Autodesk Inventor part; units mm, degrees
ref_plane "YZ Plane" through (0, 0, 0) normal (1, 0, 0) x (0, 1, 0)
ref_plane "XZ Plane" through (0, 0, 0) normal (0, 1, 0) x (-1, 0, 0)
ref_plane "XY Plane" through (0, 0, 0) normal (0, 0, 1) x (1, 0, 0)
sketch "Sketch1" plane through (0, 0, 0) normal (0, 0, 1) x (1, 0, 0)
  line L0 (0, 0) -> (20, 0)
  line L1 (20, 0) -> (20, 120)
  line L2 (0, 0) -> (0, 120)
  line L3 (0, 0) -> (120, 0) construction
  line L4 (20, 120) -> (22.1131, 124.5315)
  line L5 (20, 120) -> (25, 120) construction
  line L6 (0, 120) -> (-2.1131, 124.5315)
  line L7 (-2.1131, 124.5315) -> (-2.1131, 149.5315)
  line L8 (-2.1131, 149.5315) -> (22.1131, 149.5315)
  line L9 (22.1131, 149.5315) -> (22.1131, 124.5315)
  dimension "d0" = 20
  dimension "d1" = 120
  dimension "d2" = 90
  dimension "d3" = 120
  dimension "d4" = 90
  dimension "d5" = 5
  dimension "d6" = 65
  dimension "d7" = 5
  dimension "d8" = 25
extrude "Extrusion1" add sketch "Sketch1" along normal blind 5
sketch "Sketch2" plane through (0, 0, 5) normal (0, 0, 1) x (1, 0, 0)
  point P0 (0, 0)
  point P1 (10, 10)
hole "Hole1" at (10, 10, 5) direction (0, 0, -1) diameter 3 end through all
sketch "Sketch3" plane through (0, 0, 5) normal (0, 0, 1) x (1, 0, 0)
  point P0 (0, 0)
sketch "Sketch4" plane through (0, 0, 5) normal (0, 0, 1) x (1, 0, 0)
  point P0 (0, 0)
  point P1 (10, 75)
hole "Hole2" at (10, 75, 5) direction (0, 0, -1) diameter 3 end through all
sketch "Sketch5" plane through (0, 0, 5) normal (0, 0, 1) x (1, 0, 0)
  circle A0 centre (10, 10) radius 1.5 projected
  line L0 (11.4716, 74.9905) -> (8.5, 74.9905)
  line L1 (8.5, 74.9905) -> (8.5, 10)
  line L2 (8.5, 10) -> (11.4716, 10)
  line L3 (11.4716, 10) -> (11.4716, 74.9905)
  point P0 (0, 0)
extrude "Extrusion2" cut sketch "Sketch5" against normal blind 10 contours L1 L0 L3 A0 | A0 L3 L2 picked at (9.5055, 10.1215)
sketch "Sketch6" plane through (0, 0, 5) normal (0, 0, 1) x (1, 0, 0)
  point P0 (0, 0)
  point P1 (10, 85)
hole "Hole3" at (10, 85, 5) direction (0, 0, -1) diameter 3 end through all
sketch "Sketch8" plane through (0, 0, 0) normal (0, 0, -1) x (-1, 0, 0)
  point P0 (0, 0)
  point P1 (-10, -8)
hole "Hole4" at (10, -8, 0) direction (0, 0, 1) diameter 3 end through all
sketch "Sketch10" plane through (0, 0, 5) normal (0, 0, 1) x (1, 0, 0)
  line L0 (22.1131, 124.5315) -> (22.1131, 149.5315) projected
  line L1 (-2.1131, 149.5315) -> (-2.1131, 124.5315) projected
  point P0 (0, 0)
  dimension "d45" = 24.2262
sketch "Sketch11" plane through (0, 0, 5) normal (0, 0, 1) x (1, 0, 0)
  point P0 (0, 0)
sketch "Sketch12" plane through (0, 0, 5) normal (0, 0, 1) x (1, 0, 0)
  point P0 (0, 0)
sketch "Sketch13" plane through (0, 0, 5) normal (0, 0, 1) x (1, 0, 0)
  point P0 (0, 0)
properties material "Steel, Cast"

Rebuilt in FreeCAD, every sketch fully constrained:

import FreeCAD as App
import Part
import Sketcher

V = App.Vector
Q = App.Units.Quantity


def add_polygon(sketch, points):
    """Adds a closed chain of lines whose ends are joined by coincident constraints."""
    first, n = sketch.GeometryCount, len(points)
    for a, b in zip(points, points[1:] + points[:1]):
        sketch.addGeometry(Part.LineSegment(App.Vector(*a, 0), App.Vector(*b, 0)), False)
    for i in range(n):
        sketch.addConstraint(Sketcher.Constraint("Coincident", first + i, 2, first + (i + 1) % n, 1))

doc = App.newDocument("Part")
body = doc.addObject("PartDesign::Body", "Body")

# Sketch on XY plane
sketch1 = body.newObject("Sketcher::SketchObject", "Sketch")
sketch1.AttachmentSupport = (doc.getObject("XY_Plane"), [""])
sketch1.MapMode = "FlatFace"
add_polygon(sketch1, [(0, 120), (0, 0), (20, 0), (20, 120), (22.1131, 124.5315), (22.1131, 149.5315), (-2.1131, 149.5315), (-2.1131, 124.5315)])  # lines 0-7
sketch1.addConstraint(Sketcher.Constraint("Vertical", 0))
sketch1.addConstraint(Sketcher.Constraint("Horizontal", 1))
sketch1.addConstraint(Sketcher.Constraint("Vertical", 2))
sketch1.addConstraint(Sketcher.Constraint("Vertical", 4))
sketch1.addConstraint(Sketcher.Constraint("Horizontal", 5))
sketch1.addConstraint(Sketcher.Constraint("Vertical", 6))
sketch1.addConstraint(Sketcher.Constraint("Coincident", 0, 2, -1, 1))
sketch1.addConstraint(Sketcher.Constraint("Horizontal", 3, 2, 6, 2))
sketch1.addConstraint(Sketcher.Constraint("Horizontal", 2, 2, 7, 2))
sketch1.addConstraint(Sketcher.Constraint("Equal", 3, 7))
sketch1.addConstraint(Sketcher.Constraint("DistanceX", 1, 1, 1, 2, Q("20 mm")))
sketch1.addConstraint(Sketcher.Constraint("DistanceY", 0, 2, 0, 1, Q("120 mm")))
sketch1.addConstraint(Sketcher.Constraint("DistanceY", 4, 1, 4, 2, Q("25 mm")))
sketch1.addConstraint(Sketcher.Constraint("Angle", 3, Q("64.9997 deg")))
sketch1.addConstraint(Sketcher.Constraint("Distance", 3, Q("5 mm")))
pad1 = body.newObject("PartDesign::Pad", "Pad")
pad1.Profile = sketch1
pad1.Length = 5

# Sketch on XY plane
sketch2 = body.newObject("Sketcher::SketchObject", "Sketch001")
sketch2.AttachmentSupport = (doc.getObject("XY_Plane"), [""])
sketch2.MapMode = "FlatFace"
sketch2.AttachmentOffset = App.Placement(V(0, 0, 5), App.Rotation())
sketch2.addGeometry(Part.Circle(V(10, 10, 0), V(0, 0, 1), 1.5), False)
sketch2.addConstraint(Sketcher.Constraint("Diameter", 0, Q("3 mm")))
sketch2.addConstraint(Sketcher.Constraint("DistanceX", -1, 1, 0, 3, Q("10 mm")))
sketch2.addConstraint(Sketcher.Constraint("DistanceY", -1, 1, 0, 3, Q("10 mm")))
doc.recompute()
hole = body.newObject("PartDesign::Hole", "Hole")
hole.Profile = sketch2
hole.ThreadType = "None"
hole.Diameter = 3
hole.DepthType = "ThroughAll"

# Sketch on XY plane
sketch3 = body.newObject("Sketcher::SketchObject", "Sketch002")
sketch3.AttachmentSupport = (doc.getObject("XY_Plane"), [""])
sketch3.MapMode = "FlatFace"
sketch3.AttachmentOffset = App.Placement(V(0, 0, 5), App.Rotation())
sketch3.addGeometry(Part.Circle(V(10, 75, 0), V(0, 0, 1), 1.5), False)
sketch3.addConstraint(Sketcher.Constraint("Diameter", 0, Q("3 mm")))
sketch3.addConstraint(Sketcher.Constraint("DistanceX", -1, 1, 0, 3, Q("10 mm")))
sketch3.addConstraint(Sketcher.Constraint("DistanceY", -1, 1, 0, 3, Q("75 mm")))
doc.recompute()
hole2 = body.newObject("PartDesign::Hole", "Hole001")
hole2.Profile = sketch3
hole2.ThreadType = "None"
hole2.Diameter = 3
hole2.DepthType = "ThroughAll"

# Sketch on XY plane
sketch4 = body.newObject("Sketcher::SketchObject", "Sketch003")
sketch4.AttachmentSupport = (doc.getObject("XY_Plane"), [""])
sketch4.MapMode = "FlatFace"
sketch4.AttachmentOffset = App.Placement(V(0, 0, 5), App.Rotation())
add_polygon(sketch4, [(8.5, 74.9905), (8.5, 10), (11.4716, 10), (11.4716, 74.9905)])  # lines 0-3
sketch4.addConstraint(Sketcher.Constraint("Vertical", 0))
sketch4.addConstraint(Sketcher.Constraint("Horizontal", 1))
sketch4.addConstraint(Sketcher.Constraint("Vertical", 2))
sketch4.addConstraint(Sketcher.Constraint("Horizontal", 3))
sketch4.addConstraint(Sketcher.Constraint("DistanceY", -1, 1, 0, 2, Q("10 mm")))
sketch4.addConstraint(Sketcher.Constraint("DistanceX", -1, 1, 0, 2, Q("8.5 mm")))
sketch4.addConstraint(Sketcher.Constraint("DistanceX", 1, 1, 1, 2, Q("2.9716 mm")))
sketch4.addConstraint(Sketcher.Constraint("DistanceY", 0, 2, 0, 1, Q("64.9905 mm")))
pocket1 = body.newObject("PartDesign::Pocket", "Pocket")
pocket1.Profile = sketch4
pocket1.Length = 10

# Sketch on XY plane
sketch5 = body.newObject("Sketcher::SketchObject", "Sketch004")
sketch5.AttachmentSupport = (doc.getObject("XY_Plane"), [""])
sketch5.MapMode = "FlatFace"
sketch5.AttachmentOffset = App.Placement(V(0, 0, 5), App.Rotation())
sketch5.addGeometry(Part.Circle(V(10, 85, 0), V(0, 0, 1), 1.5), False)
sketch5.addConstraint(Sketcher.Constraint("Diameter", 0, Q("3 mm")))
sketch5.addConstraint(Sketcher.Constraint("DistanceX", -1, 1, 0, 3, Q("10 mm")))
sketch5.addConstraint(Sketcher.Constraint("DistanceY", -1, 1, 0, 3, Q("85 mm")))
doc.recompute()
hole3 = body.newObject("PartDesign::Hole", "Hole002")
hole3.Profile = sketch5
hole3.ThreadType = "None"
hole3.Diameter = 3
hole3.DepthType = "ThroughAll"

# Sketch on XY plane
sketch6 = body.newObject("Sketcher::SketchObject", "Sketch005")
sketch6.AttachmentSupport = (doc.getObject("XY_Plane"), [""])
sketch6.MapMode = "FlatFace"
sketch6.addGeometry(Part.Circle(V(10, -8, 0), V(0, 0, 1), 1.5), False)
sketch6.addConstraint(Sketcher.Constraint("Diameter", 0, Q("3 mm")))
sketch6.addConstraint(Sketcher.Constraint("DistanceX", -1, 1, 0, 3, Q("10 mm")))
sketch6.addConstraint(Sketcher.Constraint("DistanceY", 0, 3, -1, 1, Q("8 mm")))
doc.recompute()
hole4 = body.newObject("PartDesign::Hole", "Hole003")
hole4.Profile = sketch6
hole4.ThreadType = "None"
hole4.Diameter = 3
hole4.DepthType = "ThroughAll"
hole4.Reversed = True

doc.recompute()
